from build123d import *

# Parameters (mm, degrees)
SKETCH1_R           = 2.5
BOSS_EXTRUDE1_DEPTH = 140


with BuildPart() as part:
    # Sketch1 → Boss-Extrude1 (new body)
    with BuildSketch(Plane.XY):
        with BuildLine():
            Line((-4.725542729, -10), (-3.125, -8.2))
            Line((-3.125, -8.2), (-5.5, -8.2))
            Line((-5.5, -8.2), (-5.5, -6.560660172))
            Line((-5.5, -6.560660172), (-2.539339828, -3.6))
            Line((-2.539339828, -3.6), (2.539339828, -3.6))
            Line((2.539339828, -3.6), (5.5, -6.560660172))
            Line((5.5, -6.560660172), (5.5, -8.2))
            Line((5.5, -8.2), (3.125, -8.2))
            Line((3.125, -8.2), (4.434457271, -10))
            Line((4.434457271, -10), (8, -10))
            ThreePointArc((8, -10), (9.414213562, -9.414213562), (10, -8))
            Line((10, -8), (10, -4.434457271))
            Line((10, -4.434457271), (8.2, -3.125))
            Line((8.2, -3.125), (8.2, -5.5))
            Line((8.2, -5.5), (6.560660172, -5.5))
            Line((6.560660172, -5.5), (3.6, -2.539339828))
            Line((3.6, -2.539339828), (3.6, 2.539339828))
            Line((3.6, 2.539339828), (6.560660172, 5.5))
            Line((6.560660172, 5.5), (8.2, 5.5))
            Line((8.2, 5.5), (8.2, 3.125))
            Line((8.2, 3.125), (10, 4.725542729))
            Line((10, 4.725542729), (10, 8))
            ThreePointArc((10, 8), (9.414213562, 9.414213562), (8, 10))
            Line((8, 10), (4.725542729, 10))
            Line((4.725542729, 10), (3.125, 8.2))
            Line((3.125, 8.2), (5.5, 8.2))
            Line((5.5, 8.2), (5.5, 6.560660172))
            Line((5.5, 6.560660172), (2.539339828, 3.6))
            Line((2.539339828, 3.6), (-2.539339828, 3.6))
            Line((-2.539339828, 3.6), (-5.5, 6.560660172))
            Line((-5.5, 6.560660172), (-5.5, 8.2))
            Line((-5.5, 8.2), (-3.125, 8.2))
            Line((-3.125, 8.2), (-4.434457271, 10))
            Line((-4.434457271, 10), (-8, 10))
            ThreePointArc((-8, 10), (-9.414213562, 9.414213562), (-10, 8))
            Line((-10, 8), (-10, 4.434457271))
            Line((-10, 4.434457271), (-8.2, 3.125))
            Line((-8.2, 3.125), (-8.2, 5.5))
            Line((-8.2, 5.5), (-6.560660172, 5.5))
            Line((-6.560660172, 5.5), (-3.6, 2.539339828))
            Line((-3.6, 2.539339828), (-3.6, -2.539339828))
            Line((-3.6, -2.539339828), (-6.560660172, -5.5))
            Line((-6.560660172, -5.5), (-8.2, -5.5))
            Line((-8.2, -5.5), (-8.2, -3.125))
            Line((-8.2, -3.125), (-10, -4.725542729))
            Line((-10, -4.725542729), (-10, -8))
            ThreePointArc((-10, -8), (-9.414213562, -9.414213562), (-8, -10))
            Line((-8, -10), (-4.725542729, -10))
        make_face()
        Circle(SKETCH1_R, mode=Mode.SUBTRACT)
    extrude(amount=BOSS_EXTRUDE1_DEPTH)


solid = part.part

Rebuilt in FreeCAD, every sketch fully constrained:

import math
import FreeCAD as App
import Part
import Sketcher
Q = App.Units.Quantity

doc = App.newDocument("Part")
params = doc.addObject("Spreadsheet::Sheet", "Params")
for row, (alias, value) in enumerate([
    ("sketch1_diameter", "5 mm"),
    ("sketch1_radius", "2 mm"),
    ("pad1_length", "140 mm"),
], start=1):
    params.set(f"A{row}", alias)
    params.set(f"B{row}", "=" + value)
    params.setAlias(f"B{row}", alias)

body = doc.addObject("PartDesign::Body", "Body")

sketch1 = body.newObject("Sketcher::SketchObject", "Sketch")
sketch1.AttachmentSupport = (doc.getObject("XY_Plane"), [""])
sketch1.MapMode = "FlatFace"
sketch1.addGeometry(Part.LineSegment(App.Vector(-4.7, -10, 0), App.Vector(-3.1, -8.2, 0)), False)
sketch1.addGeometry(Part.LineSegment(App.Vector(-3.1, -8.2, 0), App.Vector(-5.5, -8.2, 0)), False)
sketch1.addGeometry(Part.LineSegment(App.Vector(-5.5, -8.2, 0), App.Vector(-5.5, -6.6, 0)), False)
sketch1.addGeometry(Part.LineSegment(App.Vector(-5.5, -6.6, 0), App.Vector(-2.5, -3.6, 0)), False)
sketch1.addGeometry(Part.LineSegment(App.Vector(-2.5, -3.6, 0), App.Vector(2.5, -3.6, 0)), False)
sketch1.addGeometry(Part.LineSegment(App.Vector(2.5, -3.6, 0), App.Vector(5.5, -6.6, 0)), False)
sketch1.addGeometry(Part.LineSegment(App.Vector(5.5, -6.6, 0), App.Vector(5.5, -8.2, 0)), False)
sketch1.addGeometry(Part.LineSegment(App.Vector(5.5, -8.2, 0), App.Vector(3.1, -8.2, 0)), False)
sketch1.addGeometry(Part.LineSegment(App.Vector(3.1, -8.2, 0), App.Vector(4.4, -10, 0)), False)
sketch1.addGeometry(Part.LineSegment(App.Vector(4.4, -10, 0), App.Vector(8, -10, 0)), False)
sketch1.addGeometry(Part.ArcOfCircle(Part.Circle(App.Vector(8, -8, 0), App.Vector(0, 0, 1), 2), math.radians(-90), math.radians(0)), False)
sketch1.addGeometry(Part.LineSegment(App.Vector(10, -8, 0), App.Vector(10, -4.4, 0)), False)
sketch1.addGeometry(Part.LineSegment(App.Vector(10, -4.4, 0), App.Vector(8.2, -3.1, 0)), False)
sketch1.addGeometry(Part.LineSegment(App.Vector(8.2, -3.1, 0), App.Vector(8.2, -5.5, 0)), False)
sketch1.addGeometry(Part.LineSegment(App.Vector(8.2, -5.5, 0), App.Vector(6.6, -5.5, 0)), False)
sketch1.addGeometry(Part.LineSegment(App.Vector(6.6, -5.5, 0), App.Vector(3.6, -2.5, 0)), False)
sketch1.addGeometry(Part.LineSegment(App.Vector(3.6, -2.5, 0), App.Vector(3.6, 2.5, 0)), False)
sketch1.addGeometry(Part.LineSegment(App.Vector(3.6, 2.5, 0), App.Vector(6.6, 5.5, 0)), False)
sketch1.addGeometry(Part.LineSegment(App.Vector(6.6, 5.5, 0), App.Vector(8.2, 5.5, 0)), False)
sketch1.addGeometry(Part.LineSegment(App.Vector(8.2, 5.5, 0), App.Vector(8.2, 3.1, 0)), False)
sketch1.addGeometry(Part.LineSegment(App.Vector(8.2, 3.1, 0), App.Vector(10, 4.7, 0)), False)
sketch1.addGeometry(Part.LineSegment(App.Vector(10, 4.7, 0), App.Vector(10, 8, 0)), False)
sketch1.addGeometry(Part.ArcOfCircle(Part.Circle(App.Vector(8, 8, 0), App.Vector(0, 0, 1), 2), math.radians(0), math.radians(90)), False)
sketch1.addGeometry(Part.LineSegment(App.Vector(8, 10, 0), App.Vector(4.7, 10, 0)), False)
sketch1.addGeometry(Part.LineSegment(App.Vector(4.7, 10, 0), App.Vector(3.1, 8.2, 0)), False)
sketch1.addGeometry(Part.LineSegment(App.Vector(3.1, 8.2, 0), App.Vector(5.5, 8.2, 0)), False)
sketch1.addGeometry(Part.LineSegment(App.Vector(5.5, 8.2, 0), App.Vector(5.5, 6.6, 0)), False)
sketch1.addGeometry(Part.LineSegment(App.Vector(5.5, 6.6, 0), App.Vector(2.5, 3.6, 0)), False)
sketch1.addGeometry(Part.LineSegment(App.Vector(2.5, 3.6, 0), App.Vector(-2.5, 3.6, 0)), False)
sketch1.addGeometry(Part.LineSegment(App.Vector(-2.5, 3.6, 0), App.Vector(-5.5, 6.6, 0)), False)
sketch1.addGeometry(Part.LineSegment(App.Vector(-5.5, 6.6, 0), App.Vector(-5.5, 8.2, 0)), False)
sketch1.addGeometry(Part.LineSegment(App.Vector(-5.5, 8.2, 0), App.Vector(-3.1, 8.2, 0)), False)
sketch1.addGeometry(Part.LineSegment(App.Vector(-3.1, 8.2, 0), App.Vector(-4.4, 10, 0)), False)
sketch1.addGeometry(Part.LineSegment(App.Vector(-4.4, 10, 0), App.Vector(-8, 10, 0)), False)
sketch1.addGeometry(Part.ArcOfCircle(Part.Circle(App.Vector(-8, 8, 0), App.Vector(0, 0, 1), 2), math.radians(90), math.radians(180)), False)
sketch1.addGeometry(Part.LineSegment(App.Vector(-10, 8, 0), App.Vector(-10, 4.4, 0)), False)
sketch1.addGeometry(Part.LineSegment(App.Vector(-10, 4.4, 0), App.Vector(-8.2, 3.1, 0)), False)
sketch1.addGeometry(Part.LineSegment(App.Vector(-8.2, 3.1, 0), App.Vector(-8.2, 5.5, 0)), False)
sketch1.addGeometry(Part.LineSegment(App.Vector(-8.2, 5.5, 0), App.Vector(-6.6, 5.5, 0)), False)
sketch1.addGeometry(Part.LineSegment(App.Vector(-6.6, 5.5, 0), App.Vector(-3.6, 2.5, 0)), False)
sketch1.addGeometry(Part.LineSegment(App.Vector(-3.6, 2.5, 0), App.Vector(-3.6, -2.5, 0)), False)
sketch1.addGeometry(Part.LineSegment(App.Vector(-3.6, -2.5, 0), App.Vector(-6.6, -5.5, 0)), False)
sketch1.addGeometry(Part.LineSegment(App.Vector(-6.6, -5.5, 0), App.Vector(-8.2, -5.5, 0)), False)
sketch1.addGeometry(Part.LineSegment(App.Vector(-8.2, -5.5, 0), App.Vector(-8.2, -3.1, 0)), False)
sketch1.addGeometry(Part.LineSegment(App.Vector(-8.2, -3.1, 0), App.Vector(-10, -4.7, 0)), False)
sketch1.addGeometry(Part.LineSegment(App.Vector(-10, -4.7, 0), App.Vector(-10, -8, 0)), False)
sketch1.addGeometry(Part.ArcOfCircle(Part.Circle(App.Vector(-8, -8, 0), App.Vector(0, 0, 1), 2), math.radians(-180), math.radians(-90)), False)
sketch1.addGeometry(Part.LineSegment(App.Vector(-8, -10, 0), App.Vector(-4.7, -10, 0)), False)
sketch1.addGeometry(Part.Circle(App.Vector(0, 0, 0), App.Vector(0, 0, 1), 2.5), False)
sketch1.addConstraint(Sketcher.Constraint("Coincident", 0, 2, 1, 1))
sketch1.addConstraint(Sketcher.Constraint("Coincident", 1, 2, 2, 1))
sketch1.addConstraint(Sketcher.Constraint("Coincident", 2, 2, 3, 1))
sketch1.addConstraint(Sketcher.Constraint("Coincident", 3, 2, 4, 1))
sketch1.addConstraint(Sketcher.Constraint("Coincident", 4, 2, 5, 1))
sketch1.addConstraint(Sketcher.Constraint("Coincident", 5, 2, 6, 1))
sketch1.addConstraint(Sketcher.Constraint("Coincident", 6, 2, 7, 1))
sketch1.addConstraint(Sketcher.Constraint("Coincident", 7, 2, 8, 1))
sketch1.addConstraint(Sketcher.Constraint("Coincident", 8, 2, 9, 1))
sketch1.addConstraint(Sketcher.Constraint("Tangent", 9, 2, 10, 1))
sketch1.addConstraint(Sketcher.Constraint("Tangent", 10, 2, 11, 1))
sketch1.addConstraint(Sketcher.Constraint("Coincident", 11, 2, 12, 1))
sketch1.addConstraint(Sketcher.Constraint("Coincident", 12, 2, 13, 1))
sketch1.addConstraint(Sketcher.Constraint("Coincident", 13, 2, 14, 1))
sketch1.addConstraint(Sketcher.Constraint("Coincident", 14, 2, 15, 1))
sketch1.addConstraint(Sketcher.Constraint("Coincident", 15, 2, 16, 1))
sketch1.addConstraint(Sketcher.Constraint("Coincident", 16, 2, 17, 1))
sketch1.addConstraint(Sketcher.Constraint("Coincident", 17, 2, 18, 1))
sketch1.addConstraint(Sketcher.Constraint("Coincident", 18, 2, 19, 1))
sketch1.addConstraint(Sketcher.Constraint("Coincident", 19, 2, 20, 1))
sketch1.addConstraint(Sketcher.Constraint("Coincident", 20, 2, 21, 1))
sketch1.addConstraint(Sketcher.Constraint("Tangent", 21, 2, 22, 1))
sketch1.addConstraint(Sketcher.Constraint("Tangent", 22, 2, 23, 1))
sketch1.addConstraint(Sketcher.Constraint("Coincident", 23, 2, 24, 1))
sketch1.addConstraint(Sketcher.Constraint("Coincident", 24, 2, 25, 1))
sketch1.addConstraint(Sketcher.Constraint("Coincident", 25, 2, 26, 1))
sketch1.addConstraint(Sketcher.Constraint("Coincident", 26, 2, 27, 1))
sketch1.addConstraint(Sketcher.Constraint("Coincident", 27, 2, 28, 1))
sketch1.addConstraint(Sketcher.Constraint("Coincident", 28, 2, 29, 1))
sketch1.addConstraint(Sketcher.Constraint("Coincident", 29, 2, 30, 1))
sketch1.addConstraint(Sketcher.Constraint("Coincident", 30, 2, 31, 1))
sketch1.addConstraint(Sketcher.Constraint("Coincident", 31, 2, 32, 1))
sketch1.addConstraint(Sketcher.Constraint("Coincident", 32, 2, 33, 1))
sketch1.addConstraint(Sketcher.Constraint("Tangent", 33, 2, 34, 1))
sketch1.addConstraint(Sketcher.Constraint("Tangent", 34, 2, 35, 1))
sketch1.addConstraint(Sketcher.Constraint("Coincident", 35, 2, 36, 1))
sketch1.addConstraint(Sketcher.Constraint("Coincident", 36, 2, 37, 1))
sketch1.addConstraint(Sketcher.Constraint("Coincident", 37, 2, 38, 1))
sketch1.addConstraint(Sketcher.Constraint("Coincident", 38, 2, 39, 1))
sketch1.addConstraint(Sketcher.Constraint("Coincident", 39, 2, 40, 1))
sketch1.addConstraint(Sketcher.Constraint("Coincident", 40, 2, 41, 1))
sketch1.addConstraint(Sketcher.Constraint("Coincident", 41, 2, 42, 1))
sketch1.addConstraint(Sketcher.Constraint("Coincident", 42, 2, 43, 1))
sketch1.addConstraint(Sketcher.Constraint("Coincident", 43, 2, 44, 1))
sketch1.addConstraint(Sketcher.Constraint("Coincident", 44, 2, 45, 1))
sketch1.addConstraint(Sketcher.Constraint("Tangent", 45, 2, 46, 1))
sketch1.addConstraint(Sketcher.Constraint("Tangent", 46, 2, 47, 1))
sketch1.addConstraint(Sketcher.Constraint("Coincident", 47, 2, 0, 1))
sketch1.addConstraint(Sketcher.Constraint("Horizontal", 1))
sketch1.addConstraint(Sketcher.Constraint("Vertical", 2))
sketch1.addConstraint(Sketcher.Constraint("Horizontal", 4))
sketch1.addConstraint(Sketcher.Constraint("Vertical", 6))
sketch1.addConstraint(Sketcher.Constraint("Horizontal", 7))
sketch1.addConstraint(Sketcher.Constraint("Horizontal", 9))
sketch1.addConstraint(Sketcher.Constraint("Vertical", 11))
sketch1.addConstraint(Sketcher.Constraint("Vertical", 13))
sketch1.addConstraint(Sketcher.Constraint("Horizontal", 14))
sketch1.addConstraint(Sketcher.Constraint("Vertical", 16))
sketch1.addConstraint(Sketcher.Constraint("Horizontal", 18))
sketch1.addConstraint(Sketcher.Constraint("Vertical", 19))
sketch1.addConstraint(Sketcher.Constraint("Vertical", 21))
sketch1.addConstraint(Sketcher.Constraint("Horizontal", 23))
sketch1.addConstraint(Sketcher.Constraint("Horizontal", 25))
sketch1.addConstraint(Sketcher.Constraint("Vertical", 26))
sketch1.addConstraint(Sketcher.Constraint("Horizontal", 28))
sketch1.addConstraint(Sketcher.Constraint("Vertical", 30))
sketch1.addConstraint(Sketcher.Constraint("Horizontal", 31))
sketch1.addConstraint(Sketcher.Constraint("Horizontal", 33))
sketch1.addConstraint(Sketcher.Constraint("Vertical", 35))
sketch1.addConstraint(Sketcher.Constraint("Vertical", 37))
sketch1.addConstraint(Sketcher.Constraint("Horizontal", 38))
sketch1.addConstraint(Sketcher.Constraint("Vertical", 40))
sketch1.addConstraint(Sketcher.Constraint("Horizontal", 42))
sketch1.addConstraint(Sketcher.Constraint("Vertical", 43))
sketch1.addConstraint(Sketcher.Constraint("Vertical", 45))
sketch1.addConstraint(Sketcher.Constraint("Horizontal", 47))
sketch1.addConstraint(Sketcher.Constraint("Coincident", 48, 3, -1, 1))
sketch1.addConstraint(Sketcher.Constraint("Equal", 10, 22))
sketch1.addConstraint(Sketcher.Constraint("Equal", 22, 34))
sketch1.addConstraint(Sketcher.Constraint("Equal", 34, 46))
sketch1.addConstraint(Sketcher.Constraint("Symmetric", 10, 3, 34, 3, -1, 1))
sketch1.addConstraint(Sketcher.Constraint("Symmetric", 22, 3, 46, 3, -1, 1))
sketch1.addConstraint(Sketcher.Constraint("Symmetric", 0, 2, 24, 2, -1, 1))
sketch1.addConstraint(Sketcher.Constraint("Symmetric", 2, 2, 26, 2, -1, 1))
sketch1.addConstraint(Sketcher.Constraint("Symmetric", 3, 2, 27, 2, -1, 1))
sketch1.addConstraint(Sketcher.Constraint("Symmetric", 5, 2, 29, 2, -1, 1))
sketch1.addConstraint(Sketcher.Constraint("Symmetric", 7, 2, 31, 2, -1, 1))
sketch1.addConstraint(Sketcher.Constraint("Symmetric", 12, 2, 36, 2, -1, 1))
sketch1.addConstraint(Sketcher.Constraint("Symmetric", 14, 2, 38, 2, -1, 1))
sketch1.addConstraint(Sketcher.Constraint("Symmetric", 15, 2, 39, 2, -1, 1))
sketch1.addConstraint(Sketcher.Constraint("Symmetric", 17, 2, 41, 2, -1, 1))
sketch1.addConstraint(Sketcher.Constraint("Symmetric", 19, 2, 43, 2, -1, 1))
sketch1.addConstraint(Sketcher.Constraint("Symmetric", 22, 3, 34, 3, -2))
sketch1.addConstraint(Sketcher.Constraint("Symmetric", 2, 2, 5, 2, -2))
sketch1.addConstraint(Sketcher.Constraint("Symmetric", 0, 2, 7, 2, -2))
sketch1.addConstraint(Sketcher.Constraint("Symmetric", 19, 2, 36, 2, -2))
sketch1.addConstraint(Sketcher.Constraint("Symmetric", 17, 2, 38, 2, -2))
sketch1.addConstraint(Sketcher.Constraint("Perpendicular", 3, 5))
sketch1.addConstraint(Sketcher.Constraint("Parallel", 5, 15))
sketch1.addConstraint(Sketcher.Constraint("Perpendicular", 15, 17))
sketch1.addConstraint(Sketcher.Constraint("Parallel", 0, 24))
sketch1.addConstraint(Sketcher.Constraint("Perpendicular", 27, 29))
sketch1.addConstraint(Sketcher.Constraint("Parallel", 8, 32))
sketch1.addConstraint(Sketcher.Constraint("Parallel", 12, 36))
sketch1.addConstraint(Sketcher.Constraint("Perpendicular", 39, 41))
sketch1.addConstraint(Sketcher.Constraint("Parallel", 20, 44))
sketch1.addConstraint(Sketcher.Constraint("Horizontal", 16, 2, 39, 2))
sketch1.addConstraint(Sketcher.Constraint("Equal", 42, 2))
sketch1.addConstraint(Sketcher.Constraint("Equal", 33, 11))
sketch1.addConstraint(Sketcher.Constraint("Equal", 31, 13))
sketch1.addConstraint(Sketcher.Constraint("Equal", 28, 16))
sketch1.addConstraint(Sketcher.Constraint("Equal", 47, 21))
sketch1.addConstraint(Sketcher.Constraint("Equal", 8, 12))
sketch1.addConstraint(Sketcher.Constraint("Equal", 5, 15))
sketch1.addConstraint(Sketcher.Constraint("Equal", 0, 20))
sketch1.addConstraint(Sketcher.Constraint("Diameter", 48, Q("5 mm")))
sketch1.addConstraint(Sketcher.Constraint("Radius", 10, Q("2 mm")))
sketch1.addConstraint(Sketcher.Constraint("DistanceX", -1, 1, 10, 3, Q("8 mm")))
sketch1.addConstraint(Sketcher.Constraint("DistanceY", 0, 2, -1, 1, Q("8.2 mm")))
sketch1.addConstraint(Sketcher.Constraint("DistanceX", 1, 2, -1, 1, Q("5.5 mm")))
sketch1.addConstraint(Sketcher.Constraint("DistanceY", 3, 2, -1, 1, Q("3.6 mm")))
sketch1.addConstraint(Sketcher.Constraint("DistanceX", 1, 2, 1, 1, Q("2.375 mm")))
sketch1.addConstraint(Sketcher.Constraint("DistanceX", 4, 1, 4, 2, Q("5.07868 mm")))
sketch1.addConstraint(Sketcher.Constraint("Distance", 0, Q("2.40868 mm")))
sketch1.addConstraint(Sketcher.Constraint("Distance", 8, Q("2.225911 mm")))
sketch1.setExpression("Constraints[115]", "Params.sketch1_diameter")
sketch1.setExpression("Constraints[116]", "Params.sketch1_radius")
pad1 = body.newObject("PartDesign::Pad", "Pad")
pad1.Profile = sketch1
pad1.setExpression("Length", "Params.pad1_length")

doc.recompute()
